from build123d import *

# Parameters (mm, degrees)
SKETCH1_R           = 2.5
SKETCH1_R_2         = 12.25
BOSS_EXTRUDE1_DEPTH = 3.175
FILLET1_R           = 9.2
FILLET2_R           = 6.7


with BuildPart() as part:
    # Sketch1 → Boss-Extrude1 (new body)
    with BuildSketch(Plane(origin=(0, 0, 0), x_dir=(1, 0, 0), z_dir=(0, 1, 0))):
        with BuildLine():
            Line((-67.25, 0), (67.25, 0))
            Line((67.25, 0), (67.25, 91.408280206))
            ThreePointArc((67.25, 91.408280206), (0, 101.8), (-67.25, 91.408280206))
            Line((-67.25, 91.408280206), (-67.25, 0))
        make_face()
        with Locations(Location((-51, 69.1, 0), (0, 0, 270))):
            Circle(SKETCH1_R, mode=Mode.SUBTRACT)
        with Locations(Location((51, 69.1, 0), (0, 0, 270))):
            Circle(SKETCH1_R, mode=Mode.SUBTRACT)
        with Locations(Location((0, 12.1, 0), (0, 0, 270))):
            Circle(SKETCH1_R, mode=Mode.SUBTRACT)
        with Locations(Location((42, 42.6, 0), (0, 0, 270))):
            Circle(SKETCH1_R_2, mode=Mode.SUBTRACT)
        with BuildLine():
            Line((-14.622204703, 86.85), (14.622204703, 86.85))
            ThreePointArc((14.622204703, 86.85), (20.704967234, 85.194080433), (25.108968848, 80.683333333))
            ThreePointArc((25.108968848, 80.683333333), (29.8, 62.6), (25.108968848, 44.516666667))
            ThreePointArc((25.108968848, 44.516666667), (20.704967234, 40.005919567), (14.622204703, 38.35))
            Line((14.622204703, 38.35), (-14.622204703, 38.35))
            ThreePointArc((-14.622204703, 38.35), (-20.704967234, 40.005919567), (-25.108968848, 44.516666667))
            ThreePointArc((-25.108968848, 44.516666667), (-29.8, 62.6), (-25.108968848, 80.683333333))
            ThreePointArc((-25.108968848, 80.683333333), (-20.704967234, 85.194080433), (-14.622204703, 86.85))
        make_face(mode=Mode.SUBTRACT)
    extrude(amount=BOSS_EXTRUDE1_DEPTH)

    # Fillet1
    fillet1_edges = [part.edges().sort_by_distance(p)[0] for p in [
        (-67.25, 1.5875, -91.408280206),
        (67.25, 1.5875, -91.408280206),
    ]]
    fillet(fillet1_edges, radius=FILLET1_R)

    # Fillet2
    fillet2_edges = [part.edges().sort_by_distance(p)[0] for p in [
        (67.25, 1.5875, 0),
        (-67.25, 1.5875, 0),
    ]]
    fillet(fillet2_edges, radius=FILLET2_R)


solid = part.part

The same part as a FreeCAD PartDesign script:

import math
import FreeCAD as App
import Part
import Sketcher


def edges_at(feature, points):
    """Names of the edges that pass closest to the given points."""
    edges = feature.Shape.Edges
    near = lambda p: min(range(len(edges)), key=lambda i: edges[i].distToShape(Part.Vertex(*p))[0])
    return sorted({f"Edge{near(p) + 1}" for p in points})

doc = App.newDocument("Part")
params = doc.addObject("Spreadsheet::Sheet", "Params")
for row, (alias, value) in enumerate([
    ("sketch1_diameter", "5 mm"),
    ("sketch1_radius", "12 mm"),
    ("sketch1_diameter2", "24.5 mm"),
    ("sketch1_radius2", "222.8 mm"),
    ("sketch1_radius3", "37.2 mm"),
    ("pad1_length", "3.175 mm"),
    ("fillet_radius", "9.2 mm"),
    ("fillet2_radius", "6.7 mm"),
], start=1):
    params.set(f"A{row}", alias)
    params.set(f"B{row}", "=" + value)
    params.setAlias(f"B{row}", alias)

body = doc.addObject("PartDesign::Body", "Body")

sketch1 = doc.addObject("Sketcher::SketchObject", "Sketch")
body.addObject(sketch1)
sketch1.AttachmentSupport = (doc.XZ_Plane, [""])
sketch1.MapMode = "FlatFace"
sketch1.addGeometry([
    Part.LineSegment(App.Vector(-67.25, 0, 0), App.Vector(67.25, 0, 0)),
    Part.LineSegment(App.Vector(67.25, 0, 0), App.Vector(67.25, -91.40828, 0)),
    Part.ArcOfCircle(Part.Circle(App.Vector(0, 121, 0), App.Vector(0, 0, 1), 222.8), math.radians(-107.568164), math.radians(-72.431836)),
    Part.LineSegment(App.Vector(-67.25, -91.40828, 0), App.Vector(-67.25, 0, 0)),
    Part.Circle(App.Vector(0, -12.1, 0), App.Vector(0, 0, 1), 2.5),
    Part.Circle(App.Vector(42, -42.6, 0), App.Vector(0, 0, 1), 12.25),
    Part.ArcOfCircle(Part.Circle(App.Vector(-14.622205, -74.85, 0), App.Vector(0, 0, 1), 12), math.radians(-150.914705), math.radians(-90)),
    Part.LineSegment(App.Vector(-14.622205, -86.85, 0), App.Vector(14.622205, -86.85, 0)),
    Part.ArcOfCircle(Part.Circle(App.Vector(14.622205, -74.85, 0), App.Vector(0, 0, 1), 12), math.radians(-90), math.radians(-29.085295)),
    Part.ArcOfCircle(Part.Circle(App.Vector(-7.4, -62.6, 0), App.Vector(0, 0, 1), 37.2), math.radians(-29.085295), math.radians(29.085295)),
    Part.ArcOfCircle(Part.Circle(App.Vector(14.622205, -50.35, 0), App.Vector(0, 0, 1), 12), math.radians(29.085295), math.radians(90)),
    Part.LineSegment(App.Vector(14.622205, -38.35, 0), App.Vector(-14.622205, -38.35, 0)),
    Part.ArcOfCircle(Part.Circle(App.Vector(-14.622205, -50.35, 0), App.Vector(0, 0, 1), 12), math.radians(90), math.radians(150.914705)),
    Part.ArcOfCircle(Part.Circle(App.Vector(7.4, -62.6, 0), App.Vector(0, 0, 1), 37.2), math.radians(150.914705), math.radians(209.085295)),
    Part.Circle(App.Vector(-51, -69.1, 0), App.Vector(0, 0, 1), 2.5),
    Part.Circle(App.Vector(51, -69.1, 0), App.Vector(0, 0, 1), 2.5),
], False)
sketch1.addConstraint([
    Sketcher.Constraint("Coincident", 0, 2, 1, 1),
    Sketcher.Constraint("Coincident", 1, 2, 2, 2),
    Sketcher.Constraint("Coincident", 2, 1, 3, 1),
    Sketcher.Constraint("Coincident", 3, 2, 0, 1),
    Sketcher.Constraint("Tangent", 6, 2, 7, 1),
    Sketcher.Constraint("Tangent", 7, 2, 8, 1),
    Sketcher.Constraint("Tangent", 8, 2, 9, 1),
    Sketcher.Constraint("Tangent", 9, 2, 10, 1),
    Sketcher.Constraint("Tangent", 10, 2, 11, 1),
    Sketcher.Constraint("Tangent", 11, 2, 12, 1),
    Sketcher.Constraint("Tangent", 12, 2, 13, 1),
    Sketcher.Constraint("Tangent", 13, 2, 6, 1),
    Sketcher.Constraint("Horizontal", 0),
    Sketcher.Constraint("Vertical", 1),
    Sketcher.Constraint("Vertical", 3),
    Sketcher.Constraint("Horizontal", 7),
    Sketcher.Constraint("Horizontal", 11),
    Sketcher.Constraint("Equal", 6, 8),
    Sketcher.Constraint("Equal", 8, 10),
    Sketcher.Constraint("Equal", 10, 12),
    Sketcher.Constraint("Equal", 9, 13),
    Sketcher.Constraint("Equal", 4, 14),
    Sketcher.Constraint("Equal", 14, 15),
    Sketcher.Constraint("Symmetric", 0, 2, 3, 2, -1, 1),
    Sketcher.Constraint("Symmetric", 9, 3, 13, 3, -2),
    Sketcher.Constraint("Symmetric", 14, 3, 15, 3, -2),
    Sketcher.Constraint("PointOnObject", 2, 3, -2),
    Sketcher.Constraint("PointOnObject", 4, 3, -2),
    Sketcher.Constraint("Vertical", 8, 3, 10, 3),
    Sketcher.Constraint("Diameter", 4, 5.0),
    Sketcher.Constraint("Radius", 6, 12.0),
    Sketcher.Constraint("Diameter", 5, 24.5),
    Sketcher.Constraint("Radius", 2, 222.8),
    Sketcher.Constraint("Radius", 9, 37.2),
    Sketcher.Constraint("DistanceX", 0, 1, 0, 2, 134.5),
    Sketcher.Constraint("DistanceY", -1, 1, 2, 3, 121.0),
    Sketcher.Constraint("DistanceX", -1, 1, 5, 3, 42.0),
    Sketcher.Constraint("DistanceX", 14, 3, -1, 1, 51.0),
    Sketcher.Constraint("DistanceY", 9, 3, 5, 3, 20.0),
    Sketcher.Constraint("DistanceY", 4, 3, -1, 1, 12.1),
    Sketcher.Constraint("DistanceY", 5, 3, -1, 1, 42.6),
    Sketcher.Constraint("DistanceX", 9, 3, -1, 1, 7.4),
    Sketcher.Constraint("DistanceY", 14, 3, -1, 1, 69.1),
    Sketcher.Constraint("DistanceY", 8, 3, 10, 3, 24.5),
])
sketch1.setExpression("Constraints[29]", "Params.sketch1_diameter")
sketch1.setExpression("Constraints[30]", "Params.sketch1_radius")
sketch1.setExpression("Constraints[31]", "Params.sketch1_diameter2")
sketch1.setExpression("Constraints[32]", "Params.sketch1_radius2")
sketch1.setExpression("Constraints[33]", "Params.sketch1_radius3")
pad1 = doc.addObject("PartDesign::Pad", "Pad")
body.addObject(pad1)
pad1.Profile = sketch1
pad1.setExpression("Length", "Params.pad1_length")
pad1.Reversed = True
doc.recompute()

fillet = doc.addObject("PartDesign::Fillet", "Fillet")
body.addObject(fillet)
fillet.Base = (pad1, edges_at(pad1, [(-67.25, 1.587, -91.408), (67.25, 1.587, -91.408)]))
fillet.setExpression("Radius", "Params.fillet_radius")
doc.recompute()

fillet2 = doc.addObject("PartDesign::Fillet", "Fillet001")
body.addObject(fillet2)
fillet2.Base = (fillet, edges_at(fillet, [(67.25, 1.587, 0), (-67.25, 1.587, 0)]))
fillet2.setExpression("Radius", "Params.fillet2_radius")

doc.recompute()
